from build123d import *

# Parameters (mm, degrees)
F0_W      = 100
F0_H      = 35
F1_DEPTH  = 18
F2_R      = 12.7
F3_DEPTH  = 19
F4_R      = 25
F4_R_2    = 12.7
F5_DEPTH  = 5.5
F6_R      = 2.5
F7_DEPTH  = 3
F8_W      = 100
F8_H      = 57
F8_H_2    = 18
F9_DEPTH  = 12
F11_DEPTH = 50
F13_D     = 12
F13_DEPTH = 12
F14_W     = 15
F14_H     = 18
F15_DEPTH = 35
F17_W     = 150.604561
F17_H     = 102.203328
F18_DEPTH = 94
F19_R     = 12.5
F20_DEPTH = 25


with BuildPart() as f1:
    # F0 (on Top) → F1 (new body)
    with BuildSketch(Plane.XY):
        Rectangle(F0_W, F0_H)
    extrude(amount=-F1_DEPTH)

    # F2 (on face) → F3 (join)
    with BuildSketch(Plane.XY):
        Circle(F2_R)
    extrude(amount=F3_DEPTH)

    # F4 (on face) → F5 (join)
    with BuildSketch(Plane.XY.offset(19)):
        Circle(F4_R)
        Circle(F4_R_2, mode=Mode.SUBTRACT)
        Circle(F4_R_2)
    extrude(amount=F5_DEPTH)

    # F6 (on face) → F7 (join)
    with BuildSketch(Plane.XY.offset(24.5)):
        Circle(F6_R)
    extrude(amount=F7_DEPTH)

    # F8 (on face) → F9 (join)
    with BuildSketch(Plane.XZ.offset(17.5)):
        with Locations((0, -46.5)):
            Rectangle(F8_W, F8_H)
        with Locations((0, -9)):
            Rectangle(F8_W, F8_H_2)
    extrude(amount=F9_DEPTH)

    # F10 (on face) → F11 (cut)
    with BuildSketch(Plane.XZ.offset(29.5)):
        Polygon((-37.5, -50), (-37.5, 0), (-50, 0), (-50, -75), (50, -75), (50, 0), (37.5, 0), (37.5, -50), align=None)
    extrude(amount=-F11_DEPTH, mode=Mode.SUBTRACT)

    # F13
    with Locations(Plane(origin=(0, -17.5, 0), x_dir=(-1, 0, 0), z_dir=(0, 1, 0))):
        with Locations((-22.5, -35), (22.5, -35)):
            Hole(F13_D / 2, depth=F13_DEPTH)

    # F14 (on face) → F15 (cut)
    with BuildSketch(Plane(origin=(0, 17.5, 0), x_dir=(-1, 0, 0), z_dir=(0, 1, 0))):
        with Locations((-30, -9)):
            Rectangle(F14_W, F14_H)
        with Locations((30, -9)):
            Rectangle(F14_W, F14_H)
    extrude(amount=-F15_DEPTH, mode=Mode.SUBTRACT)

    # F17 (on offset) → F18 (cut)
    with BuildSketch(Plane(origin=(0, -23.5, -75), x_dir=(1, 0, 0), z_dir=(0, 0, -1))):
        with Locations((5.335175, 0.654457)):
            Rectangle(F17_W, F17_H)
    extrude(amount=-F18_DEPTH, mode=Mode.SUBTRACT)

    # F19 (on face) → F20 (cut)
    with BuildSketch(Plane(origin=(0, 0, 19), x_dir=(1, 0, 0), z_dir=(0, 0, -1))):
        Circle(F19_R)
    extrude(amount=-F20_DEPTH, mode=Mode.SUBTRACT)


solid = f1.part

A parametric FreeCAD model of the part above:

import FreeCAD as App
import Part
import Sketcher

V = App.Vector


def add_polygon(sketch, points):
    """Adds a closed chain of lines whose ends are joined by coincident constraints."""
    first, n = sketch.GeometryCount, len(points)
    for a, b in zip(points, points[1:] + points[:1]):
        sketch.addGeometry(Part.LineSegment(App.Vector(*a, 0), App.Vector(*b, 0)), False)
    for i in range(n):
        sketch.addConstraint(Sketcher.Constraint("Coincident", first + i, 2, first + (i + 1) % n, 1))

doc = App.newDocument("Part")
params = doc.addObject("Spreadsheet::Sheet", "Params")
for row, (alias, value) in enumerate([
    ("sketch1_width", "100 mm"),
    ("sketch1_height", "35 mm"),
    ("pad1_length", "18 mm"),
    ("sketch2_diameter", "25.4 mm"),
    ("pad2_length", "19 mm"),
    ("sketch3_diameter", "50 mm"),
    ("pad3_length", "5.5 mm"),
    ("sketch4_diameter", "5 mm"),
    ("pad4_length", "3 mm"),
    ("sketch5_width", "100 mm"),
    ("sketch5_height", "75 mm"),
    ("pad5_length", "12 mm"),
    ("sketch6_width", "100 mm"),
    ("sketch6_width2", "75 mm"),
    ("sketch6_height", "50 mm"),
    ("pocket1_length", "50 mm"),
    ("sketch7_diameter", "12 mm"),
    ("hole_diameter", "12 mm"),
    ("hole_depth", "12 mm"),
    ("sketch8_width", "15 mm"),
    ("sketch8_height", "18 mm"),
    ("pocket2_length", "35 mm"),
    ("pocket3_length", "94 mm"),
    ("sketch10_diameter", "25 mm"),
    ("pocket4_length", "25 mm"),
], start=1):
    params.set(f"A{row}", alias)
    params.set(f"B{row}", "=" + value)
    params.setAlias(f"B{row}", alias)

body = doc.addObject("PartDesign::Body", "Body")

# Sketch on XY plane
sketch1 = body.newObject("Sketcher::SketchObject", "Sketch")
sketch1.AttachmentSupport = (doc.getObject("XY_Plane"), [""])
sketch1.MapMode = "FlatFace"
add_polygon(sketch1, [(-50, 17.5), (-50, -17.5), (50, -17.5), (50, 17.5)])  # lines 0-3
sketch1.addConstraint([
    Sketcher.Constraint("Vertical", 0),
    Sketcher.Constraint("Horizontal", 1),
    Sketcher.Constraint("Vertical", 2),
    Sketcher.Constraint("Horizontal", 3),
    Sketcher.Constraint("Symmetric", 0, 2, 2, 2, -1, 1),
    Sketcher.Constraint("DistanceX", 1, 1, 1, 2, 100.0),
    Sketcher.Constraint("DistanceY", 0, 2, 0, 1, 35.0),
])
sketch1.setExpression("Constraints[9]", "Params.sketch1_width")
sketch1.setExpression("Constraints[10]", "Params.sketch1_height")
pad1 = body.newObject("PartDesign::Pad", "Pad")
pad1.Profile = sketch1
pad1.setExpression("Length", "Params.pad1_length")
pad1.Reversed = True

# Sketch on XY plane
sketch2 = body.newObject("Sketcher::SketchObject", "Sketch001")
sketch2.AttachmentSupport = (doc.getObject("XY_Plane"), [""])
sketch2.MapMode = "FlatFace"
sketch2.addGeometry(Part.Circle(V(0, 0, 0), V(0, 0, 1), 12.7), False)
sketch2.addConstraint([
    Sketcher.Constraint("Coincident", 0, 3, -1, 1),
    Sketcher.Constraint("Diameter", 0, 25.4),
])
sketch2.setExpression("Constraints[1]", "Params.sketch2_diameter")
pad2 = body.newObject("PartDesign::Pad", "Pad001")
pad2.Profile = sketch2
pad2.setExpression("Length", "Params.pad2_length")

# Sketch on XY plane
sketch3 = body.newObject("Sketcher::SketchObject", "Sketch002")
sketch3.AttachmentSupport = (doc.getObject("XY_Plane"), [""])
sketch3.MapMode = "FlatFace"
sketch3.AttachmentOffset = App.Placement(V(0, 0, 19), App.Rotation())
sketch3.addGeometry(Part.Circle(V(0, 0, 0), V(0, 0, 1), 25), False)
sketch3.addConstraint([
    Sketcher.Constraint("Coincident", 0, 3, -1, 1),
    Sketcher.Constraint("Diameter", 0, 50.0),
])
sketch3.setExpression("Constraints[1]", "Params.sketch3_diameter")
pad3 = body.newObject("PartDesign::Pad", "Pad002")
pad3.Profile = sketch3
pad3.setExpression("Length", "Params.pad3_length")

# Sketch on XY plane
sketch4 = body.newObject("Sketcher::SketchObject", "Sketch003")
sketch4.AttachmentSupport = (doc.getObject("XY_Plane"), [""])
sketch4.MapMode = "FlatFace"
sketch4.AttachmentOffset = App.Placement(V(0, 0, 24.5), App.Rotation())
sketch4.addGeometry(Part.Circle(V(0, 0, 0), V(0, 0, 1), 2.5), False)
sketch4.addConstraint([
    Sketcher.Constraint("Coincident", 0, 3, -1, 1),
    Sketcher.Constraint("Diameter", 0, 5.0),
])
sketch4.setExpression("Constraints[1]", "Params.sketch4_diameter")
pad4 = body.newObject("PartDesign::Pad", "Pad003")
pad4.Profile = sketch4
pad4.setExpression("Length", "Params.pad4_length")

# Sketch on XZ plane
sketch5 = body.newObject("Sketcher::SketchObject", "Sketch004")
sketch5.AttachmentSupport = (doc.getObject("XZ_Plane"), [""])
sketch5.MapMode = "FlatFace"
sketch5.AttachmentOffset = App.Placement(V(0, 0, 17.5), App.Rotation())
add_polygon(sketch5, [(-50, -75), (50, -75), (50, 0), (-50, 0)])  # lines 0-3
sketch5.addConstraint([
    Sketcher.Constraint("Horizontal", 0),
    Sketcher.Constraint("Vertical", 1),
    Sketcher.Constraint("Horizontal", 2),
    Sketcher.Constraint("Vertical", 3),
    Sketcher.Constraint("Symmetric", 1, 2, 2, 2, -1, 1),
    Sketcher.Constraint("DistanceX", 0, 1, 0, 2, 100.0),
    Sketcher.Constraint("DistanceY", 1, 1, 1, 2, 75.0),
])
sketch5.setExpression("Constraints[9]", "Params.sketch5_width")
sketch5.setExpression("Constraints[10]", "Params.sketch5_height")
pad5 = body.newObject("PartDesign::Pad", "Pad004")
pad5.Profile = sketch5
pad5.setExpression("Length", "Params.pad5_length")

# Sketch on XZ plane
sketch6 = body.newObject("Sketcher::SketchObject", "Sketch005")
sketch6.AttachmentSupport = (doc.getObject("XZ_Plane"), [""])
sketch6.MapMode = "FlatFace"
sketch6.AttachmentOffset = App.Placement(V(0, 0, 29.5), App.Rotation())
add_polygon(sketch6, [(-37.5, -50), (-37.5, 0), (-50, 0), (-50, -75), (50, -75), (50, 0), (37.5, 0), (37.5, -50)])  # lines 0-7
sketch6.addConstraint([
    Sketcher.Constraint("Vertical", 0),
    Sketcher.Constraint("Horizontal", 1),
    Sketcher.Constraint("Vertical", 2),
    Sketcher.Constraint("Horizontal", 3),
    Sketcher.Constraint("Vertical", 4),
    Sketcher.Constraint("Horizontal", 5),
    Sketcher.Constraint("Vertical", 6),
    Sketcher.Constraint("Horizontal", 7),
    Sketcher.Constraint("Symmetric", 1, 2, 4, 2, -1, 1),
    Sketcher.Constraint("Symmetric", 0, 2, 5, 2, -2),
    Sketcher.Constraint("Equal", 7, 2),
    Sketcher.Constraint("DistanceX", 3, 1, 3, 2, 100.0),
    Sketcher.Constraint("DistanceX", 7, 2, 7, 1, 75.0),
    Sketcher.Constraint("DistanceY", 0, 1, 0, 2, 50.0),
])
sketch6.setExpression("Constraints[19]", "Params.sketch6_width")
sketch6.setExpression("Constraints[20]", "Params.sketch6_width2")
sketch6.setExpression("Constraints[21]", "Params.sketch6_height")
pocket1 = body.newObject("PartDesign::Pocket", "Pocket")
pocket1.Profile = sketch6
pocket1.setExpression("Length", "Params.pocket1_length")

# Sketch on XZ plane
sketch7 = body.newObject("Sketcher::SketchObject", "Sketch006")
sketch7.AttachmentSupport = (doc.getObject("XZ_Plane"), [""])
sketch7.MapMode = "FlatFace"
sketch7.AttachmentOffset = App.Placement(V(0, 0, 17.5), App.Rotation())
sketch7.addGeometry([
    Part.Circle(V(22.5, -35, 0), V(0, 0, 1), 6),
    Part.Circle(V(-22.5, -35, 0), V(0, 0, 1), 6),
], False)
sketch7.addConstraint([
    Sketcher.Constraint("Equal", 0, 1),
    Sketcher.Constraint("Symmetric", 0, 3, 1, 3, -2),
    Sketcher.Constraint("Diameter", 0, 12.0),
    Sketcher.Constraint("DistanceY", 0, 3, -1, 1, 35.0),
    Sketcher.Constraint("DistanceX", 1, 3, 0, 3, 45.0),
])
sketch7.setExpression("Constraints[2]", "Params.sketch7_diameter")
doc.recompute()
hole = body.newObject("PartDesign::Hole", "Hole")
hole.Profile = sketch7
hole.ThreadType = "None"
hole.setExpression("Diameter", "Params.hole_diameter")
hole.DepthType = "Dimension"
hole.setExpression("Depth", "Params.hole_depth")
hole.DrillPoint = "Flat"
hole.Reversed = True

# Sketch on XZ plane
sketch8 = body.newObject("Sketcher::SketchObject", "Sketch007")
sketch8.AttachmentSupport = (doc.getObject("XZ_Plane"), [""])
sketch8.MapMode = "FlatFace"
sketch8.AttachmentOffset = App.Placement(V(0, 0, -17.5), App.Rotation())
add_polygon(sketch8, [(37.5, 0), (37.5, -18), (22.5, -18), (22.5, 0)])  # lines 0-3
add_polygon(sketch8, [(-22.5, 0), (-22.5, -18), (-37.5, -18), (-37.5, 0)])  # lines 4-7
sketch8.addConstraint([
    Sketcher.Constraint("Vertical", 0),
    Sketcher.Constraint("Horizontal", 1),
    Sketcher.Constraint("Vertical", 2),
    Sketcher.Constraint("Horizontal", 3),
    Sketcher.Constraint("Vertical", 4),
    Sketcher.Constraint("Horizontal", 5),
    Sketcher.Constraint("Vertical", 6),
    Sketcher.Constraint("Horizontal", 7),
    Sketcher.Constraint("Symmetric", 3, 2, 6, 2, -1, 1),
    Sketcher.Constraint("Symmetric", 1, 2, 4, 2, -2),
    Sketcher.Constraint("PointOnObject", 2, 2, -1),
    Sketcher.Constraint("DistanceX", 1, 2, 1, 1, 15.0),
    Sketcher.Constraint("DistanceY", 0, 2, 0, 1, 18.0),
    Sketcher.Constraint("DistanceX", 4, 2, 1, 2, 45.0),
])
sketch8.setExpression("Constraints[19]", "Params.sketch8_width")
sketch8.setExpression("Constraints[20]", "Params.sketch8_height")
pocket2 = body.newObject("PartDesign::Pocket", "Pocket001")
pocket2.Profile = sketch8
pocket2.setExpression("Length", "Params.pocket2_length")
pocket2.Reversed = True

# Sketch on XY plane
sketch9 = body.newObject("Sketcher::SketchObject", "Sketch008")
sketch9.AttachmentSupport = (doc.getObject("XY_Plane"), [""])
sketch9.MapMode = "FlatFace"
sketch9.AttachmentOffset = App.Placement(V(0, 0, -75), App.Rotation())
add_polygon(sketch9, [(-69.967106, -75.256121), (-69.967106, 26.947207), (80.637456, 26.947207), (80.637456, -75.256121)])  # lines 0-3
sketch9.addConstraint([
    Sketcher.Constraint("Vertical", 0),
    Sketcher.Constraint("Horizontal", 1),
    Sketcher.Constraint("Vertical", 2),
    Sketcher.Constraint("Horizontal", 3),
    Sketcher.Constraint("DistanceX", 1, 1, 1, 2, 150.604561),
    Sketcher.Constraint("DistanceY", 0, 1, 0, 2, 102.203328),
    Sketcher.Constraint("DistanceY", 2, 2, -1, 1, 75.256121),
    Sketcher.Constraint("DistanceX", 0, 2, -1, 1, 69.967106),
])
pocket3 = body.newObject("PartDesign::Pocket", "Pocket002")
pocket3.Profile = sketch9
pocket3.setExpression("Length", "Params.pocket3_length")
pocket3.Reversed = True

# Sketch on XY plane
sketch10 = body.newObject("Sketcher::SketchObject", "Sketch009")
sketch10.AttachmentSupport = (doc.getObject("XY_Plane"), [""])
sketch10.MapMode = "FlatFace"
sketch10.AttachmentOffset = App.Placement(V(0, 0, 19), App.Rotation())
sketch10.addGeometry(Part.Circle(V(0, 0, 0), V(0, 0, 1), 12.5), False)
sketch10.addConstraint([
    Sketcher.Constraint("Coincident", 0, 3, -1, 1),
    Sketcher.Constraint("Diameter", 0, 25.0),
])
sketch10.setExpression("Constraints[1]", "Params.sketch10_diameter")
pocket4 = body.newObject("PartDesign::Pocket", "Pocket003")
pocket4.Profile = sketch10
pocket4.setExpression("Length", "Params.pocket4_length")
pocket4.Reversed = True

doc.recompute()
